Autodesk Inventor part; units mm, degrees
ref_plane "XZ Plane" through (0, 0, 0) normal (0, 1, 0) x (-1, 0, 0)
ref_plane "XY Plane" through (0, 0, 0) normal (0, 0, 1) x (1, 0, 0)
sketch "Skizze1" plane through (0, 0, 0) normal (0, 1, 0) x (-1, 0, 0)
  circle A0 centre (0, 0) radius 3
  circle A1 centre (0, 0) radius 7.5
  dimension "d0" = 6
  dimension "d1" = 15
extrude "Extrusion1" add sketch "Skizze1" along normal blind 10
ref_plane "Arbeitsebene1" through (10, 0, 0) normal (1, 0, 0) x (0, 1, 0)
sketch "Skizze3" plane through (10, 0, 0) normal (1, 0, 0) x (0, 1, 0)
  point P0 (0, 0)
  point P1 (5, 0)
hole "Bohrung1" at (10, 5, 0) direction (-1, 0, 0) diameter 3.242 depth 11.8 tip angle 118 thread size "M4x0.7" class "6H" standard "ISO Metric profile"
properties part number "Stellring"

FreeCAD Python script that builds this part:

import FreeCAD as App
import Part
import Sketcher

doc = App.newDocument("Part")
body = doc.addObject("PartDesign::Body", "Body")

# Sketch on XZ plane
sketch1 = body.newObject("Sketcher::SketchObject", "Sketch")
sketch1.AttachmentSupport = (doc.getObject("XZ_Plane"), [""])
sketch1.MapMode = "FlatFace"
sketch1.addGeometry([
    Part.Circle(App.Vector(0, 0, 0), App.Vector(0, 0, 1), 7.5),
    Part.Circle(App.Vector(0, 0, 0), App.Vector(0, 0, 1), 3),
], False)
sketch1.addConstraint([
    Sketcher.Constraint("Coincident", 0, 3, -1, 1),
    Sketcher.Constraint("Coincident", 1, 3, -1, 1),
    Sketcher.Constraint("Diameter", 0, 15.0),
    Sketcher.Constraint("Diameter", 1, 6.0),
])
pad1 = body.newObject("PartDesign::Pad", "Pad")
pad1.Profile = sketch1
pad1.Length = 10
pad1.Reversed = True

# Sketch on YZ plane
sketch2 = body.newObject("Sketcher::SketchObject", "Sketch001")
sketch2.AttachmentSupport = (doc.getObject("YZ_Plane"), [""])
sketch2.MapMode = "FlatFace"
sketch2.AttachmentOffset = App.Placement(App.Vector(0, 0, 10), App.Rotation())
sketch2.addGeometry(Part.Circle(App.Vector(5, 0, 0), App.Vector(0, 0, 1), 1.6), False)
sketch2.addConstraint([
    Sketcher.Constraint("PointOnObject", 0, 3, -1),
    Sketcher.Constraint("Diameter", 0, 3.242),
    Sketcher.Constraint("DistanceX", -1, 1, 0, 3, 5.0),
])
doc.recompute()
hole = body.newObject("PartDesign::Hole", "Hole")
hole.Profile = sketch2
hole.ThreadType = "None"
hole.Diameter = 3.242
hole.DepthType = "Dimension"
hole.Depth = 11.8
hole.DrillPoint = "Angled"
hole.DrillPointAngle = 118

doc.recompute()
